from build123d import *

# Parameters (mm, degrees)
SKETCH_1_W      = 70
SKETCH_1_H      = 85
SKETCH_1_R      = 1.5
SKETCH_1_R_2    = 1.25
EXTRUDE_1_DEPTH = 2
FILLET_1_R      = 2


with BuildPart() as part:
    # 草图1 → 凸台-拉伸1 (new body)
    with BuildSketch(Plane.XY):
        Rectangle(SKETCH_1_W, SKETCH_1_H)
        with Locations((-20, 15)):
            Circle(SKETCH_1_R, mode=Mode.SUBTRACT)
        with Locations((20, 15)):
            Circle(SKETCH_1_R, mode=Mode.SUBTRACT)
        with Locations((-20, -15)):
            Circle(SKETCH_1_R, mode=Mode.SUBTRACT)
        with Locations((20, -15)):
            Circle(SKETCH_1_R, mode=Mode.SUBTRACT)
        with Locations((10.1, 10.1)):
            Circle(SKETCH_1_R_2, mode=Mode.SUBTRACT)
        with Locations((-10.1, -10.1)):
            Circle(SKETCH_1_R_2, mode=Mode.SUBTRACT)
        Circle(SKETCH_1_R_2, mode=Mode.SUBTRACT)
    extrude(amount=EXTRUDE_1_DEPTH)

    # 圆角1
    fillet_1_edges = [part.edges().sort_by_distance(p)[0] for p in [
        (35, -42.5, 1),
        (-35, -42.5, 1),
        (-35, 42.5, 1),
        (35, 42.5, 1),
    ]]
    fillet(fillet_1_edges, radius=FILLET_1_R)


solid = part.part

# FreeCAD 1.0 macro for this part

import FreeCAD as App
import Part
import Sketcher
from FreeCAD import Vector


def edges_at(feature, points):
    """Names of the edges that pass closest to the given points."""
    edges = feature.Shape.Edges
    near = lambda p: min(range(len(edges)), key=lambda i: edges[i].distToShape(Part.Vertex(*p))[0])
    return sorted({f"Edge{near(p) + 1}" for p in points})

doc = App.newDocument("Part")
params = doc.addObject("Spreadsheet::Sheet", "Params")
for row, (alias, value) in enumerate([
    ("sketch1_diameter", "3 mm"),
    ("sketch1_diameter2", "2.5 mm"),
    ("sketch1_width", "70 mm"),
    ("sketch1_height", "85 mm"),
    ("pad1_length", "2 mm"),
    ("fillet_radius", "2 mm"),
], start=1):
    params.set(f"A{row}", alias)
    params.set(f"B{row}", "=" + value)
    params.setAlias(f"B{row}", alias)

body = doc.addObject("PartDesign::Body", "Body")

sketch1 = body.newObject("Sketcher::SketchObject", "Sketch")
sketch1.AttachmentSupport = (doc.getObject("XY_Plane"), [""])
sketch1.MapMode = "FlatFace"
sketch1.addGeometry(Part.LineSegment(Vector(-35, 42.5, 0), Vector(-35, -42.5, 0)), False)
sketch1.addGeometry(Part.LineSegment(Vector(-35, -42.5, 0), Vector(35, -42.5, 0)), False)
sketch1.addGeometry(Part.LineSegment(Vector(35, -42.5, 0), Vector(35, 42.5, 0)), False)
sketch1.addGeometry(Part.LineSegment(Vector(35, 42.5, 0), Vector(-35, 42.5, 0)), False)
sketch1.addGeometry(Part.Circle(Vector(-20, -15, 0), Vector(0, 0, 1), 1.5), False)
sketch1.addGeometry(Part.Circle(Vector(-10.1, -10.1, 0), Vector(0, 0, 1), 1.2), False)
sketch1.addGeometry(Part.Circle(Vector(20, -15, 0), Vector(0, 0, 1), 1.5), False)
sketch1.addGeometry(Part.Circle(Vector(-20, 15, 0), Vector(0, 0, 1), 1.5), False)
sketch1.addGeometry(Part.Circle(Vector(0, 0, 0), Vector(0, 0, 1), 1.2), False)
sketch1.addGeometry(Part.Circle(Vector(10.1, 10.1, 0), Vector(0, 0, 1), 1.2), False)
sketch1.addGeometry(Part.Circle(Vector(20, 15, 0), Vector(0, 0, 1), 1.5), False)
sketch1.addConstraint(Sketcher.Constraint("Coincident", 0, 2, 1, 1))
sketch1.addConstraint(Sketcher.Constraint("Coincident", 1, 2, 2, 1))
sketch1.addConstraint(Sketcher.Constraint("Coincident", 2, 2, 3, 1))
sketch1.addConstraint(Sketcher.Constraint("Coincident", 3, 2, 0, 1))
sketch1.addConstraint(Sketcher.Constraint("Vertical", 0))
sketch1.addConstraint(Sketcher.Constraint("Horizontal", 1))
sketch1.addConstraint(Sketcher.Constraint("Vertical", 2))
sketch1.addConstraint(Sketcher.Constraint("Horizontal", 3))
sketch1.addConstraint(Sketcher.Constraint("Coincident", 8, 3, -1, 1))
sketch1.addConstraint(Sketcher.Constraint("Equal", 4, 6))
sketch1.addConstraint(Sketcher.Constraint("Equal", 6, 7))
sketch1.addConstraint(Sketcher.Constraint("Equal", 5, 8))
sketch1.addConstraint(Sketcher.Constraint("Equal", 8, 9))
sketch1.addConstraint(Sketcher.Constraint("Equal", 7, 10))
sketch1.addConstraint(Sketcher.Constraint("Symmetric", 6, 3, 7, 3, -1, 1))
sketch1.addConstraint(Sketcher.Constraint("Symmetric", 5, 3, 9, 3, -1, 1))
sketch1.addConstraint(Sketcher.Constraint("Symmetric", 4, 3, 10, 3, -1, 1))
sketch1.addConstraint(Sketcher.Constraint("Symmetric", 0, 2, 2, 2, -1, 1))
sketch1.addConstraint(Sketcher.Constraint("Symmetric", 4, 3, 6, 3, -2))
sketch1.addConstraint(Sketcher.Constraint("Diameter", 4, 3.0))
sketch1.addConstraint(Sketcher.Constraint("Diameter", 5, 2.5))
sketch1.addConstraint(Sketcher.Constraint("DistanceX", 1, 1, 1, 2, 70.0))
sketch1.addConstraint(Sketcher.Constraint("DistanceY", 0, 2, 0, 1, 85.0))
sketch1.addConstraint(Sketcher.Constraint("DistanceX", 4, 3, -1, 1, 20.0))
sketch1.addConstraint(Sketcher.Constraint("DistanceY", 4, 3, -1, 1, 15.0))
sketch1.addConstraint(Sketcher.Constraint("DistanceX", 5, 3, -1, 1, 10.1))
sketch1.addConstraint(Sketcher.Constraint("DistanceY", 5, 3, -1, 1, 10.1))
sketch1.setExpression("Constraints[19]", "Params.sketch1_diameter")
sketch1.setExpression("Constraints[20]", "Params.sketch1_diameter2")
sketch1.setExpression("Constraints[21]", "Params.sketch1_width")
sketch1.setExpression("Constraints[22]", "Params.sketch1_height")
pad1 = body.newObject("PartDesign::Pad", "Pad")
pad1.Profile = sketch1
pad1.setExpression("Length", "Params.pad1_length")
doc.recompute()

fillet = body.newObject("PartDesign::Fillet", "Fillet")
fillet.Base = (pad1, edges_at(pad1, [
    (35, -42.5, 1),
    (-35, -42.5, 1),
    (-35, 42.5, 1),
    (35, 42.5, 1),
]))
fillet.setExpression("Radius", "Params.fillet_radius")

doc.recompute()
